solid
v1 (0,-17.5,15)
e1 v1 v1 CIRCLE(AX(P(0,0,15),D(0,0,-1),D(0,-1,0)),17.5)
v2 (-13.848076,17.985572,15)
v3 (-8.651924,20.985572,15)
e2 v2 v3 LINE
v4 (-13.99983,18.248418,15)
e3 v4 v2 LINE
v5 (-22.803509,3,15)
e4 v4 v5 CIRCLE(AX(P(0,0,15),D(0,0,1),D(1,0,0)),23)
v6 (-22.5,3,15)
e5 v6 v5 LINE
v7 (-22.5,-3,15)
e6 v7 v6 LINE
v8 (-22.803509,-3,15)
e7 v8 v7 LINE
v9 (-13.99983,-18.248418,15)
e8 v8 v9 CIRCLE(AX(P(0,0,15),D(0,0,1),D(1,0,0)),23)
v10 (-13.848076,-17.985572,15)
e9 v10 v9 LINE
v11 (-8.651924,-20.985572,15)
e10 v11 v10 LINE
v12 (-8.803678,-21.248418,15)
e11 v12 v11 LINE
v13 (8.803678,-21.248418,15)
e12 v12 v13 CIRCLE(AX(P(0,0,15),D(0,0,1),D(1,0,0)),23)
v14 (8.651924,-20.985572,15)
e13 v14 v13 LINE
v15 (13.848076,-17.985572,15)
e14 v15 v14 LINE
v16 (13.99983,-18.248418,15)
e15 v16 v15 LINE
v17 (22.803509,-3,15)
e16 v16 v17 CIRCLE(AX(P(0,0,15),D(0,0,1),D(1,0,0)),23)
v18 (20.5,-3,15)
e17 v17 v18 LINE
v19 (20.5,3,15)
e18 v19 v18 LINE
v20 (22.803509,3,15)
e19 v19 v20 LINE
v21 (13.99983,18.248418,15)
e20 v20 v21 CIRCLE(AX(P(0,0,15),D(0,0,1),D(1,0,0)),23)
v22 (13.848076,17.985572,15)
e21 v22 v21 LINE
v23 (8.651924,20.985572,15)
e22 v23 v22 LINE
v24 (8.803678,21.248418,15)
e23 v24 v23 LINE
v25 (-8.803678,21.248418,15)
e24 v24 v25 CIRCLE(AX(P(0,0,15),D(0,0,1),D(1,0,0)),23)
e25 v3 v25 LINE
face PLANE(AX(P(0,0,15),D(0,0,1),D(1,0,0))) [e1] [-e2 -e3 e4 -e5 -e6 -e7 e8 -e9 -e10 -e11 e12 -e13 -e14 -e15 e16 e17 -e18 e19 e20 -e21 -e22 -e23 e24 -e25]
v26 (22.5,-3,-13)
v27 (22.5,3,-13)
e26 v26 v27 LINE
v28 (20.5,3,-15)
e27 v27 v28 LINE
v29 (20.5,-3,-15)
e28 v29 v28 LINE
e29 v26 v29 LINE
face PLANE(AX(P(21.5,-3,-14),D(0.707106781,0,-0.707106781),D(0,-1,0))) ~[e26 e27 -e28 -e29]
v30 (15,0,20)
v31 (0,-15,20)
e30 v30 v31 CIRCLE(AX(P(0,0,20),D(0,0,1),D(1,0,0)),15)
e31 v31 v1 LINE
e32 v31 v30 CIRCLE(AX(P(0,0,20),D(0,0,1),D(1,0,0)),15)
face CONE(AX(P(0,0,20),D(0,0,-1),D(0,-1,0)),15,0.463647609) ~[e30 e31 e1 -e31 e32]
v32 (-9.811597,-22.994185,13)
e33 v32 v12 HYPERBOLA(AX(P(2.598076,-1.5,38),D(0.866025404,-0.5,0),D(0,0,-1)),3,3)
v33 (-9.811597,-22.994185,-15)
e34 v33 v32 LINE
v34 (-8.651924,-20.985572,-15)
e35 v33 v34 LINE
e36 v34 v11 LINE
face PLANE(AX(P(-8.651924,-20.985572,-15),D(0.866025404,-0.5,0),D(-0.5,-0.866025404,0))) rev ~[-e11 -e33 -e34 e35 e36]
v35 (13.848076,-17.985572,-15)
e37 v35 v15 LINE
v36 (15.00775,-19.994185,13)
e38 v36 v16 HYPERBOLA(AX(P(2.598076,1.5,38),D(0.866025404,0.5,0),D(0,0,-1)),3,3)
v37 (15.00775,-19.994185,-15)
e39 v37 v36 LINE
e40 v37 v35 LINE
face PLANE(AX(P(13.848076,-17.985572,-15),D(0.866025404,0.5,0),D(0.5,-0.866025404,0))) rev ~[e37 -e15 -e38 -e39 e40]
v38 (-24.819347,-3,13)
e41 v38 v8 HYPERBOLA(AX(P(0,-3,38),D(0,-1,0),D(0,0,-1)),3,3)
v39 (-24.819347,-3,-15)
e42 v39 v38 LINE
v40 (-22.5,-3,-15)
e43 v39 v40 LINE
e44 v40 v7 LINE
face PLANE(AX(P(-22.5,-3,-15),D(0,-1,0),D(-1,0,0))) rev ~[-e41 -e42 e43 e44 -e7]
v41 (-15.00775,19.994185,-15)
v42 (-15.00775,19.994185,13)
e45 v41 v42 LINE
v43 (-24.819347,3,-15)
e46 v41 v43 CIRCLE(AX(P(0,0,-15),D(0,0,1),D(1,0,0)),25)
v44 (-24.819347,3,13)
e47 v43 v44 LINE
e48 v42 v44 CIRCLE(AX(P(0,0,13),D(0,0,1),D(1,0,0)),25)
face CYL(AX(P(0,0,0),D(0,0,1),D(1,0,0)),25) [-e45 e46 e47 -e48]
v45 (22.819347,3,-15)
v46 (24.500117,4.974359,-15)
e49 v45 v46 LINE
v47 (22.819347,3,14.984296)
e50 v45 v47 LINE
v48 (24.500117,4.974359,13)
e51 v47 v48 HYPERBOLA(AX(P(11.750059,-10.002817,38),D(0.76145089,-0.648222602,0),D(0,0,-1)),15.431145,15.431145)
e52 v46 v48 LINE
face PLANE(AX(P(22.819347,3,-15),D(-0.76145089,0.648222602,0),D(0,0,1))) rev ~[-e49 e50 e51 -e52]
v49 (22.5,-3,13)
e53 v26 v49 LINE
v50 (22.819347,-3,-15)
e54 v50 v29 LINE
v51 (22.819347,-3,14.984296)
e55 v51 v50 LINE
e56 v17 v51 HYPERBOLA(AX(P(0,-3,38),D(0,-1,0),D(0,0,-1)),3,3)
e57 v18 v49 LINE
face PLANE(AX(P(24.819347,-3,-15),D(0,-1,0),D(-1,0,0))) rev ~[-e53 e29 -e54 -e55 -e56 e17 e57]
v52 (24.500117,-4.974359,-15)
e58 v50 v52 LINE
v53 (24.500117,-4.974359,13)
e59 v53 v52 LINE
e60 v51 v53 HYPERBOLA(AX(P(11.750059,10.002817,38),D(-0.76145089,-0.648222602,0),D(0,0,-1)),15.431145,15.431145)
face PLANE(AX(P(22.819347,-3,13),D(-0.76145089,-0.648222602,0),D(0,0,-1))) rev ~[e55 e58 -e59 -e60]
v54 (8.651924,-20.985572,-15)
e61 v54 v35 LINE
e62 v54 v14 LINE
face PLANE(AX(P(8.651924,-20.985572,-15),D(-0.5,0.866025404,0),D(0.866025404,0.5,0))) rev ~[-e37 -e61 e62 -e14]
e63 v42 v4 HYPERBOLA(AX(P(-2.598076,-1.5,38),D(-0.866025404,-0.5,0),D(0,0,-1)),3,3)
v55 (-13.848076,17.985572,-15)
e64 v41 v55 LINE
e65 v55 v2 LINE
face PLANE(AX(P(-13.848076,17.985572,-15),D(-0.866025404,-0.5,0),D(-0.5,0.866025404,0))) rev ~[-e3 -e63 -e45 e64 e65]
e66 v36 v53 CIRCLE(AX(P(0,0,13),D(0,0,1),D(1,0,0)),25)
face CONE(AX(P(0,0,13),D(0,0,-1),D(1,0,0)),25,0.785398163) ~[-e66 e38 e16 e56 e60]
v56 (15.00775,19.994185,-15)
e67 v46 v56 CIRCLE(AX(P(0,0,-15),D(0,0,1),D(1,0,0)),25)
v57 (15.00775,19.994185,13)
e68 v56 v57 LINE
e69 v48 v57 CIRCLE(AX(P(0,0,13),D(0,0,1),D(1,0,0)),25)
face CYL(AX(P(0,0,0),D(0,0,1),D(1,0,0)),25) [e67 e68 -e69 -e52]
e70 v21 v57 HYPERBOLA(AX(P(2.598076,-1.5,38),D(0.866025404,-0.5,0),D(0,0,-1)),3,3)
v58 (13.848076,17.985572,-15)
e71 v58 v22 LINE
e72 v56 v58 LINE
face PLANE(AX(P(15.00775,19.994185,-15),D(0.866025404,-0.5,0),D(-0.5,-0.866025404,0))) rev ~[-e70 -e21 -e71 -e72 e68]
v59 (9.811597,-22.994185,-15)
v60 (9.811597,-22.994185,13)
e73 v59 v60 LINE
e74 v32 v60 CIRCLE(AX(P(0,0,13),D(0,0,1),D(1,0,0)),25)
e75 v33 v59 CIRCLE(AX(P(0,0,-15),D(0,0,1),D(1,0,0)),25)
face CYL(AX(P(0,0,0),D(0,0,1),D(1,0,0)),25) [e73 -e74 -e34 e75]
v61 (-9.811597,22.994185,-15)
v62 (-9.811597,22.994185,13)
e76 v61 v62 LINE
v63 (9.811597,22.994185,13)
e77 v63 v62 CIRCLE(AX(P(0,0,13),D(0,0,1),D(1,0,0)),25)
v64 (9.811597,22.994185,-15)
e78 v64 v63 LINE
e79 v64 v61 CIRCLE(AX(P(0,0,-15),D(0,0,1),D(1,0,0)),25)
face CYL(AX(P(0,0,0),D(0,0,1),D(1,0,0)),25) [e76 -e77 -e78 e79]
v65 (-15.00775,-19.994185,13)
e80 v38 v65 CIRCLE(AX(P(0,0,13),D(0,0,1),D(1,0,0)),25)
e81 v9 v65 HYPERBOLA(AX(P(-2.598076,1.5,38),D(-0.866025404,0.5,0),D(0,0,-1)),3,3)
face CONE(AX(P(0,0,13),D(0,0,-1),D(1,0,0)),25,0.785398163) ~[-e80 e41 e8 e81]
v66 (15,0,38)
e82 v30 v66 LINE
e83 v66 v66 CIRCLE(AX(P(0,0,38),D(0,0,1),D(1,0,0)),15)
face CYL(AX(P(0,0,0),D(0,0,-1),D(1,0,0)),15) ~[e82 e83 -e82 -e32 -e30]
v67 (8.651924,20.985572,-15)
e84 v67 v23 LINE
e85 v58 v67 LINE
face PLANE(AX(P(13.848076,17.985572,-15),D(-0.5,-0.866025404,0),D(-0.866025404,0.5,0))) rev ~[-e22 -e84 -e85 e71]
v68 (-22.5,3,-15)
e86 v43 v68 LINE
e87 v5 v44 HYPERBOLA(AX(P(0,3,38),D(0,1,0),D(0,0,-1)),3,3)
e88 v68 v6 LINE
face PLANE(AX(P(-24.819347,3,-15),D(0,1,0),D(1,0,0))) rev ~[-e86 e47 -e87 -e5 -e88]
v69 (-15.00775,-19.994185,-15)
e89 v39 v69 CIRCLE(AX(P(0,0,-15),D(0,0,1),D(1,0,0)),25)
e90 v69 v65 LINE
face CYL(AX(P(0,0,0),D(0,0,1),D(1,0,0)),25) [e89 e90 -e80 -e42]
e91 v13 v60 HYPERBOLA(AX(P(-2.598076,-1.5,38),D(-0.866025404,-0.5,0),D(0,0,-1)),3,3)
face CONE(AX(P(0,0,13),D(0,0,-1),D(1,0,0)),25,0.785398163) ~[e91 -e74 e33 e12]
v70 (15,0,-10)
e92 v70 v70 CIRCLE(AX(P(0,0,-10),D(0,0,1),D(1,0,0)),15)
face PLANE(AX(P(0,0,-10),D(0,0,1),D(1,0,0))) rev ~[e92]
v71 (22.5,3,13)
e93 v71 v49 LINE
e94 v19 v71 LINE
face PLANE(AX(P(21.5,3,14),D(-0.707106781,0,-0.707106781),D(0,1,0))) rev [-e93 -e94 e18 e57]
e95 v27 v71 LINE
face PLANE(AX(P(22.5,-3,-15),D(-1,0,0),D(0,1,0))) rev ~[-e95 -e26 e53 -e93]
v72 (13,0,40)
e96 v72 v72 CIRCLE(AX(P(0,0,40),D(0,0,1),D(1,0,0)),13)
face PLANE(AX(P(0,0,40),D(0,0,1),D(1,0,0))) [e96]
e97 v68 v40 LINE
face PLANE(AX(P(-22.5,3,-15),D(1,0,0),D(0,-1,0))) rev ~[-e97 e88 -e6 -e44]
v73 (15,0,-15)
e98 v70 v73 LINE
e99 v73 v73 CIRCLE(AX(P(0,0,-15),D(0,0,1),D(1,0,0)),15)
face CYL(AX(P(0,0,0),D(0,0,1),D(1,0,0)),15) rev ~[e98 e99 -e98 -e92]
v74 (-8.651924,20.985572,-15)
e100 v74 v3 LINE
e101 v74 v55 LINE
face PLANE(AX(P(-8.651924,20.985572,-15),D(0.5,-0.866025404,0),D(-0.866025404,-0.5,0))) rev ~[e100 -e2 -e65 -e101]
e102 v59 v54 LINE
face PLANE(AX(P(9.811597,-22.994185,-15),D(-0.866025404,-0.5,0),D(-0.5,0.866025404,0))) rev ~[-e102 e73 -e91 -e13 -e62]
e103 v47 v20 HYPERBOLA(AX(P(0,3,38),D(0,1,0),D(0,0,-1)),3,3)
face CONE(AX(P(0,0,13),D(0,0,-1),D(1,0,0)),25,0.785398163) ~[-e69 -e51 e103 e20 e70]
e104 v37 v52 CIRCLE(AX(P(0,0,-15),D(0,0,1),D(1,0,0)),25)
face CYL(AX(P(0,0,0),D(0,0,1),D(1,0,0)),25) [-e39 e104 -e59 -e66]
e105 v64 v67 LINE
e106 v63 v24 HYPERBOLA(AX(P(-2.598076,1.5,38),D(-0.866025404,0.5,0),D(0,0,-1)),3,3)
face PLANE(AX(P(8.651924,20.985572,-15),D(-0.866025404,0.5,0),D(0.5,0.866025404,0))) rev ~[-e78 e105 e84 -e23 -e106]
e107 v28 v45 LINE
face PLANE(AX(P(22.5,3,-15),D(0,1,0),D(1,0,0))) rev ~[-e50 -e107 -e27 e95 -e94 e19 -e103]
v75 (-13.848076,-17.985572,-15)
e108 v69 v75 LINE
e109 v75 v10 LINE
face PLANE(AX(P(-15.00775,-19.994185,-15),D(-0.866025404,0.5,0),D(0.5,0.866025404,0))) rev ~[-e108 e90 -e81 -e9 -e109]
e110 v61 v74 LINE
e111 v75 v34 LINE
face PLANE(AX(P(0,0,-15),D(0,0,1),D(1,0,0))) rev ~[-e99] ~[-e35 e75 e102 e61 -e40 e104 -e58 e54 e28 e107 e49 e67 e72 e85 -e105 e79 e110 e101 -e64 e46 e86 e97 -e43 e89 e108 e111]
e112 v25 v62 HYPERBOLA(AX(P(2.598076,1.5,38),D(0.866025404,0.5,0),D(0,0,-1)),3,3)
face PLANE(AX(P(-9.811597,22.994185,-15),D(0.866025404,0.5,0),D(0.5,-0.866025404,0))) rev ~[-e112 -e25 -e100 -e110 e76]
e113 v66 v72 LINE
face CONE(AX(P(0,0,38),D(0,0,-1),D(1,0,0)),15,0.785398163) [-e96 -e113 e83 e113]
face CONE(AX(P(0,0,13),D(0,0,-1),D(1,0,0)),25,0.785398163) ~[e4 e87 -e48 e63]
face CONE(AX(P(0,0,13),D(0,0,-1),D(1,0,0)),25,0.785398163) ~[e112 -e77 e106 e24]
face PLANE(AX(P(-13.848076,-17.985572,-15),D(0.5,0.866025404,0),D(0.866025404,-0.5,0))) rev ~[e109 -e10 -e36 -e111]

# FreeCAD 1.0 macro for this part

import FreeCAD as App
import Part
import Sketcher

V = App.Vector
Q = App.Units.Quantity


def edges_at(feature, points):
    """Names of the edges that pass closest to the given points."""
    edges = feature.Shape.Edges
    near = lambda p: min(range(len(edges)), key=lambda i: edges[i].distToShape(Part.Vertex(*p))[0])
    return sorted({f"Edge{near(p) + 1}" for p in points})

doc = App.newDocument("Part")
params = doc.addObject("Spreadsheet::Sheet", "Params")
for row, (alias, value) in enumerate([
    ("sketch1_diameter", "30 mm"),
    ("sketch1_diameter2", "50 mm"),
    ("pad1_length", "30 mm"),
    ("sketch2_diameter", "30 mm"),
    ("pad2_length", "10 mm"),
    ("sketch3_diameter", "30 mm"),
    ("pad3_length", "40 mm"),
    ("chamfer_size", "2 mm"),
    ("sketch4_width", "3 mm"),
    ("sketch4_height", "6 mm"),
    ("chamfer2_size", "2 mm"),
    ("sketch5_diameter", "35 mm"),
    ("sketch5_diameter2", "30 mm"),
    ("pad4_length", "5 mm"),
    ("sketch6_height", "5 mm"),
    ("sketch6_width", "2.5 mm"),
    ("groove_angle", "360 deg"),
], start=1):
    params.set(f"A{row}", alias)
    params.set(f"B{row}", "=" + value)
    params.setAlias(f"B{row}", alias)

body = doc.addObject("PartDesign::Body", "Body")

# Sketch on XY plane
sketch1 = body.newObject("Sketcher::SketchObject", "Sketch")
sketch1.AttachmentSupport = (doc.getObject("XY_Plane"), [""])
sketch1.MapMode = "FlatFace"
sketch1.addGeometry([
    Part.Circle(V(0, 0, 0), V(0, 0, 1), 25),
    Part.Circle(V(0, 0, 0), V(0, 0, 1), 15),
], False)
sketch1.addConstraint([
    Sketcher.Constraint("Coincident", 0, 3, -1, 1),
    Sketcher.Constraint("Coincident", 1, 3, -1, 1),
    Sketcher.Constraint("Diameter", 1, Q("30 mm")),
    Sketcher.Constraint("Diameter", 0, Q("50 mm")),
])
sketch1.setExpression("Constraints[2]", "Params.sketch1_diameter")
sketch1.setExpression("Constraints[3]", "Params.sketch1_diameter2")
pad1 = body.newObject("PartDesign::Pad", "Pad")
pad1.Profile = sketch1
pad1.setExpression("Length", "Params.pad1_length")
pad1.Midplane = True

# Sketch on XY plane
sketch2 = body.newObject("Sketcher::SketchObject", "Sketch001")
sketch2.AttachmentSupport = (doc.getObject("XY_Plane"), [""])
sketch2.MapMode = "FlatFace"
sketch2.addGeometry(Part.Circle(V(0, 0, 0), V(0, 0, 1), 15), False)
sketch2.addConstraint([
    Sketcher.Constraint("Coincident", 0, 3, -1, 1),
    Sketcher.Constraint("Diameter", 0, Q("30 mm")),
])
sketch2.setExpression("Constraints[1]", "Params.sketch2_diameter")
pad2 = body.newObject("PartDesign::Pad", "Pad001")
pad2.Profile = sketch2
pad2.setExpression("Length", "Params.pad2_length")
pad2.Reversed = True

# Sketch on XY plane
sketch3 = body.newObject("Sketcher::SketchObject", "Sketch002")
sketch3.AttachmentSupport = (doc.getObject("XY_Plane"), [""])
sketch3.MapMode = "FlatFace"
sketch3.addGeometry(Part.Circle(V(0, 0, 0), V(0, 0, 1), 15), False)
sketch3.addConstraint([
    Sketcher.Constraint("Coincident", 0, 3, -1, 1),
    Sketcher.Constraint("Diameter", 0, Q("30 mm")),
])
sketch3.setExpression("Constraints[1]", "Params.sketch3_diameter")
pad3 = body.newObject("PartDesign::Pad", "Pad002")
pad3.Profile = sketch3
pad3.setExpression("Length", "Params.pad3_length")
doc.recompute()

chamfer = body.newObject("PartDesign::Chamfer", "Chamfer")
chamfer.Base = (pad3, edges_at(pad3, [(-25, 0, 15)]))
chamfer.setExpression("Size", "Params.chamfer_size")

# Sketch on XY plane
sketch4 = body.newObject("Sketcher::SketchObject", "Sketch003")
sketch4.AttachmentSupport = (doc.getObject("XY_Plane"), [""])
sketch4.MapMode = "FlatFace"
sketch4.AttachmentOffset = App.Placement(V(0, 0, -15), App.Rotation())
sketch4.addGeometry([
    Part.LineSegment(V(22.5, 3, 0), V(25.5, 3, 0)),
    Part.LineSegment(V(25.5, 3, 0), V(25.5, -3, 0)),
    Part.LineSegment(V(25.5, -3, 0), V(22.5, -3, 0)),
    Part.LineSegment(V(22.5, -3, 0), V(22.5, 3, 0)),
], False)
sketch4.addConstraint([
    Sketcher.Constraint("Coincident", 0, 2, 1, 1),
    Sketcher.Constraint("Coincident", 1, 2, 2, 1),
    Sketcher.Constraint("Coincident", 2, 2, 3, 1),
    Sketcher.Constraint("Coincident", 3, 2, 0, 1),
    Sketcher.Constraint("Horizontal", 0),
    Sketcher.Constraint("Vertical", 1),
    Sketcher.Constraint("Horizontal", 2),
    Sketcher.Constraint("Vertical", 3),
    Sketcher.Constraint("DistanceX", 0, 1, 0, 2, Q("3 mm")),
    Sketcher.Constraint("DistanceY", 1, 2, 1, 1, Q("6 mm")),
    Sketcher.Constraint("DistanceY", -1, 1, 0, 2, Q("3 mm")),
    Sketcher.Constraint("DistanceX", -1, 1, 0, 2, Q("25.5 mm")),
])
sketch4.setExpression("Constraints[8]", "Params.sketch4_width")
sketch4.setExpression("Constraints[9]", "Params.sketch4_height")
pocket1 = body.newObject("PartDesign::Pocket", "Pocket")
pocket1.Profile = sketch4
pocket1.Type = "ThroughAll"
pocket1.Reversed = True
doc.recompute()

chamfer2 = body.newObject("PartDesign::Chamfer", "Chamfer001")
chamfer2.Base = (pocket1, edges_at(pocket1, [
    (24.819, -3, -1),
    (24.819, 3, -1),
    (22.5, 0, -15),
    (22.5, 0, 15),
    (-15, 0, 40),
]))
chamfer2.setExpression("Size", "Params.chamfer2_size")
doc.recompute()

polarpattern = body.newObject("PartDesign::PolarPattern", "PolarPattern")
polarpattern.Originals = [pocket1]
polarpattern.Axis = (doc.getObject("Z_Axis"), [""])
polarpattern.Angle = 360
polarpattern.Occurrences = 6
body.Tip = polarpattern

# Sketch on XY plane
sketch5 = body.newObject("Sketcher::SketchObject", "Sketch004")
sketch5.AttachmentSupport = (doc.getObject("XY_Plane"), [""])
sketch5.MapMode = "FlatFace"
sketch5.AttachmentOffset = App.Placement(V(0, 0, 15), App.Rotation())
sketch5.addGeometry([
    Part.Circle(V(0, 0, 0), V(0, 0, 1), 17.5),
    Part.Circle(V(0, 0, 0), V(0, 0, 1), 15),
], False)
sketch5.addConstraint([
    Sketcher.Constraint("Coincident", 0, 3, -1, 1),
    Sketcher.Constraint("Coincident", 1, 3, -1, 1),
    Sketcher.Constraint("Diameter", 0, Q("35 mm")),
    Sketcher.Constraint("Diameter", 1, Q("30 mm")),
])
sketch5.setExpression("Constraints[2]", "Params.sketch5_diameter")
sketch5.setExpression("Constraints[3]", "Params.sketch5_diameter2")
pad4 = body.newObject("PartDesign::Pad", "Pad003")
pad4.Profile = sketch5
pad4.setExpression("Length", "Params.pad4_length")

# Sketch on YZ plane
sketch6 = body.newObject("Sketcher::SketchObject", "Sketch005")
sketch6.AttachmentSupport = (doc.getObject("YZ_Plane"), [""])
sketch6.MapMode = "FlatFace"
sketch6.addGeometry([
    Part.LineSegment(V(-17.5, 15, 0), V(-15, 20, 0)),
    Part.LineSegment(V(-15, 20, 0), V(-17.5, 20, 0)),
    Part.LineSegment(V(-17.5, 20, 0), V(-17.5, 15, 0)),
], False)
sketch6.addConstraint([
    Sketcher.Constraint("Coincident", 0, 2, 1, 1),
    Sketcher.Constraint("Coincident", 1, 2, 2, 1),
    Sketcher.Constraint("Coincident", 2, 2, 0, 1),
    Sketcher.Constraint("Horizontal", 1),
    Sketcher.Constraint("Vertical", 2),
    Sketcher.Constraint("DistanceY", 2, 2, 2, 1, Q("5 mm")),
    Sketcher.Constraint("DistanceX", 1, 2, 1, 1, Q("2.5 mm")),
    Sketcher.Constraint("DistanceX", 0, 2, -1, 1, Q("15 mm")),
    Sketcher.Constraint("DistanceY", -1, 1, 0, 2, Q("20 mm")),
])
sketch6.setExpression("Constraints[5]", "Params.sketch6_height")
sketch6.setExpression("Constraints[6]", "Params.sketch6_width")
groove = body.newObject("PartDesign::Groove", "Groove")
groove.Profile = sketch6
groove.ReferenceAxis = (sketch6, ["V_Axis"])
groove.setExpression("Angle", "Params.groove_angle")

doc.recompute()
